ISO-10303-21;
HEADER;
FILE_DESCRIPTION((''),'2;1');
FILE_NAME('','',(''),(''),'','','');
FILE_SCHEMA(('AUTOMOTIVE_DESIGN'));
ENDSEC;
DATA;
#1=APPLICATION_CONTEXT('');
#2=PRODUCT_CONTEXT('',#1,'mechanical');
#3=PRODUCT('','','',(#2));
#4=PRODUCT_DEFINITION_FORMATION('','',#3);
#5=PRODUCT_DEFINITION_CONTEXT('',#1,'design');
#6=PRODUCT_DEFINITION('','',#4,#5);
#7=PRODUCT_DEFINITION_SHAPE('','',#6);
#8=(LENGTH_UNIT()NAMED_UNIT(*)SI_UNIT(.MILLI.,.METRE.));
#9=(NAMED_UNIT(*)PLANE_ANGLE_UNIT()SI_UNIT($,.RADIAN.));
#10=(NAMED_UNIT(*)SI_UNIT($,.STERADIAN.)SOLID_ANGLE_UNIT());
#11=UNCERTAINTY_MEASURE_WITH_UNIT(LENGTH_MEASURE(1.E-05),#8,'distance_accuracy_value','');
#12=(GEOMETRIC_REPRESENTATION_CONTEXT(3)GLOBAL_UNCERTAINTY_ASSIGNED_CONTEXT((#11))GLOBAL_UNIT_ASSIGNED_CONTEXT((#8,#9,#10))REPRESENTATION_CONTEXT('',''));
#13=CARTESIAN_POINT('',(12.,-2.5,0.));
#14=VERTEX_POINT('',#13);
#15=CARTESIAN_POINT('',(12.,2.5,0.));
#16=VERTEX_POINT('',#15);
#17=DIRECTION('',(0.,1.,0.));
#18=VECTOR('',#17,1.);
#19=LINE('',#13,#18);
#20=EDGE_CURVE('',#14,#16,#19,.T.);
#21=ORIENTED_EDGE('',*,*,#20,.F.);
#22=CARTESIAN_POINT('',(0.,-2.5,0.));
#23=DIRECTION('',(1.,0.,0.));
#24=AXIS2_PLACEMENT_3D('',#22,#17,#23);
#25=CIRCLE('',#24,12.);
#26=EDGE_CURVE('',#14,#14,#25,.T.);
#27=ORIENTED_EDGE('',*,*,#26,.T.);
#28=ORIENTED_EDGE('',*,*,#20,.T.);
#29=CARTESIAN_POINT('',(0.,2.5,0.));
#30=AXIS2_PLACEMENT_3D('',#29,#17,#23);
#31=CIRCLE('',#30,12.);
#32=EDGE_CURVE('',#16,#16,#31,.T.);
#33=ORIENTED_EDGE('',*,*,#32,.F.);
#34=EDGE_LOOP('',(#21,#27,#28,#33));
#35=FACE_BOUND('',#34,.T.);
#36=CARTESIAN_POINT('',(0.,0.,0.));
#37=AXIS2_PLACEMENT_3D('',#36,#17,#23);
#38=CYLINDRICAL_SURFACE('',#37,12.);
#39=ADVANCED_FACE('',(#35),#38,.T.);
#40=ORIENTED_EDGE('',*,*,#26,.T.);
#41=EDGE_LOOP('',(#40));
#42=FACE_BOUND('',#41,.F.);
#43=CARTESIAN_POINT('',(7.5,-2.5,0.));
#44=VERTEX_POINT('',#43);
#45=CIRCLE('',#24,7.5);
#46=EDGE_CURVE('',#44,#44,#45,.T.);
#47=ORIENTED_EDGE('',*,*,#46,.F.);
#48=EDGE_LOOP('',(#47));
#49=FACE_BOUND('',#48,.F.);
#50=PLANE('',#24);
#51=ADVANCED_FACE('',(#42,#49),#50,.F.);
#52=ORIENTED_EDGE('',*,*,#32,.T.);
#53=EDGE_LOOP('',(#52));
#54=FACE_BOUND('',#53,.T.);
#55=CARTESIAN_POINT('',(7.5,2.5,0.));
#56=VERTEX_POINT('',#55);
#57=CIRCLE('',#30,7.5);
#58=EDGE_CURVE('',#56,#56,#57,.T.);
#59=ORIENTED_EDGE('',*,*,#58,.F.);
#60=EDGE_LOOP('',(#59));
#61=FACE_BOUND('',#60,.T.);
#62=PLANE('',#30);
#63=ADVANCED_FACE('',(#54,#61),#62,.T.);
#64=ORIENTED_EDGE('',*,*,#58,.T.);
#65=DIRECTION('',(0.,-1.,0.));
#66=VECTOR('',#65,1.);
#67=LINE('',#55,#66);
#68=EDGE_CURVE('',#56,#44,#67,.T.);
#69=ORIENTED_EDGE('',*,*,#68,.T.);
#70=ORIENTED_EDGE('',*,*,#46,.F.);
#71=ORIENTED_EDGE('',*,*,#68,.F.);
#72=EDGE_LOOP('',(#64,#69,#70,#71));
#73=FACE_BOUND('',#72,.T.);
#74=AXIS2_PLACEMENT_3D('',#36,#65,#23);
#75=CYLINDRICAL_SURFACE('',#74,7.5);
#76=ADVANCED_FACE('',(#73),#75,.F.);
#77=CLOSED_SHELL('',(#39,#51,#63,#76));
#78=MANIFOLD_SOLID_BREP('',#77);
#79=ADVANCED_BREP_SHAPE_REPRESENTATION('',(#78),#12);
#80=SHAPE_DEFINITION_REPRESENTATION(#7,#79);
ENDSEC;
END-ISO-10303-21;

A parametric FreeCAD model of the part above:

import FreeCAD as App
import Part
import Sketcher

V = App.Vector
Q = App.Units.Quantity

doc = App.newDocument("Part")
body = doc.addObject("PartDesign::Body", "Body")

sketch1 = body.newObject("Sketcher::SketchObject", "Sketch")
sketch1.AttachmentSupport = (doc.getObject("XZ_Plane"), [""])
sketch1.MapMode = "FlatFace"
sketch1.addGeometry([
    Part.Circle(V(0, 0, 0), V(0, 0, 1), 12),
    Part.Circle(V(0, 0, 0), V(0, 0, 1), 7.5),
], False)
sketch1.addConstraint([
    Sketcher.Constraint("Coincident", 0, 3, -1, 1),
    Sketcher.Constraint("Coincident", 1, 3, -1, 1),
    Sketcher.Constraint("Diameter", 0, Q("24 mm")),
    Sketcher.Constraint("Diameter", 1, Q("15 mm")),
])
pad1 = body.newObject("PartDesign::Pad", "Pad")
pad1.Profile = sketch1
pad1.Length = 5
pad1.Midplane = True

doc.recompute()
